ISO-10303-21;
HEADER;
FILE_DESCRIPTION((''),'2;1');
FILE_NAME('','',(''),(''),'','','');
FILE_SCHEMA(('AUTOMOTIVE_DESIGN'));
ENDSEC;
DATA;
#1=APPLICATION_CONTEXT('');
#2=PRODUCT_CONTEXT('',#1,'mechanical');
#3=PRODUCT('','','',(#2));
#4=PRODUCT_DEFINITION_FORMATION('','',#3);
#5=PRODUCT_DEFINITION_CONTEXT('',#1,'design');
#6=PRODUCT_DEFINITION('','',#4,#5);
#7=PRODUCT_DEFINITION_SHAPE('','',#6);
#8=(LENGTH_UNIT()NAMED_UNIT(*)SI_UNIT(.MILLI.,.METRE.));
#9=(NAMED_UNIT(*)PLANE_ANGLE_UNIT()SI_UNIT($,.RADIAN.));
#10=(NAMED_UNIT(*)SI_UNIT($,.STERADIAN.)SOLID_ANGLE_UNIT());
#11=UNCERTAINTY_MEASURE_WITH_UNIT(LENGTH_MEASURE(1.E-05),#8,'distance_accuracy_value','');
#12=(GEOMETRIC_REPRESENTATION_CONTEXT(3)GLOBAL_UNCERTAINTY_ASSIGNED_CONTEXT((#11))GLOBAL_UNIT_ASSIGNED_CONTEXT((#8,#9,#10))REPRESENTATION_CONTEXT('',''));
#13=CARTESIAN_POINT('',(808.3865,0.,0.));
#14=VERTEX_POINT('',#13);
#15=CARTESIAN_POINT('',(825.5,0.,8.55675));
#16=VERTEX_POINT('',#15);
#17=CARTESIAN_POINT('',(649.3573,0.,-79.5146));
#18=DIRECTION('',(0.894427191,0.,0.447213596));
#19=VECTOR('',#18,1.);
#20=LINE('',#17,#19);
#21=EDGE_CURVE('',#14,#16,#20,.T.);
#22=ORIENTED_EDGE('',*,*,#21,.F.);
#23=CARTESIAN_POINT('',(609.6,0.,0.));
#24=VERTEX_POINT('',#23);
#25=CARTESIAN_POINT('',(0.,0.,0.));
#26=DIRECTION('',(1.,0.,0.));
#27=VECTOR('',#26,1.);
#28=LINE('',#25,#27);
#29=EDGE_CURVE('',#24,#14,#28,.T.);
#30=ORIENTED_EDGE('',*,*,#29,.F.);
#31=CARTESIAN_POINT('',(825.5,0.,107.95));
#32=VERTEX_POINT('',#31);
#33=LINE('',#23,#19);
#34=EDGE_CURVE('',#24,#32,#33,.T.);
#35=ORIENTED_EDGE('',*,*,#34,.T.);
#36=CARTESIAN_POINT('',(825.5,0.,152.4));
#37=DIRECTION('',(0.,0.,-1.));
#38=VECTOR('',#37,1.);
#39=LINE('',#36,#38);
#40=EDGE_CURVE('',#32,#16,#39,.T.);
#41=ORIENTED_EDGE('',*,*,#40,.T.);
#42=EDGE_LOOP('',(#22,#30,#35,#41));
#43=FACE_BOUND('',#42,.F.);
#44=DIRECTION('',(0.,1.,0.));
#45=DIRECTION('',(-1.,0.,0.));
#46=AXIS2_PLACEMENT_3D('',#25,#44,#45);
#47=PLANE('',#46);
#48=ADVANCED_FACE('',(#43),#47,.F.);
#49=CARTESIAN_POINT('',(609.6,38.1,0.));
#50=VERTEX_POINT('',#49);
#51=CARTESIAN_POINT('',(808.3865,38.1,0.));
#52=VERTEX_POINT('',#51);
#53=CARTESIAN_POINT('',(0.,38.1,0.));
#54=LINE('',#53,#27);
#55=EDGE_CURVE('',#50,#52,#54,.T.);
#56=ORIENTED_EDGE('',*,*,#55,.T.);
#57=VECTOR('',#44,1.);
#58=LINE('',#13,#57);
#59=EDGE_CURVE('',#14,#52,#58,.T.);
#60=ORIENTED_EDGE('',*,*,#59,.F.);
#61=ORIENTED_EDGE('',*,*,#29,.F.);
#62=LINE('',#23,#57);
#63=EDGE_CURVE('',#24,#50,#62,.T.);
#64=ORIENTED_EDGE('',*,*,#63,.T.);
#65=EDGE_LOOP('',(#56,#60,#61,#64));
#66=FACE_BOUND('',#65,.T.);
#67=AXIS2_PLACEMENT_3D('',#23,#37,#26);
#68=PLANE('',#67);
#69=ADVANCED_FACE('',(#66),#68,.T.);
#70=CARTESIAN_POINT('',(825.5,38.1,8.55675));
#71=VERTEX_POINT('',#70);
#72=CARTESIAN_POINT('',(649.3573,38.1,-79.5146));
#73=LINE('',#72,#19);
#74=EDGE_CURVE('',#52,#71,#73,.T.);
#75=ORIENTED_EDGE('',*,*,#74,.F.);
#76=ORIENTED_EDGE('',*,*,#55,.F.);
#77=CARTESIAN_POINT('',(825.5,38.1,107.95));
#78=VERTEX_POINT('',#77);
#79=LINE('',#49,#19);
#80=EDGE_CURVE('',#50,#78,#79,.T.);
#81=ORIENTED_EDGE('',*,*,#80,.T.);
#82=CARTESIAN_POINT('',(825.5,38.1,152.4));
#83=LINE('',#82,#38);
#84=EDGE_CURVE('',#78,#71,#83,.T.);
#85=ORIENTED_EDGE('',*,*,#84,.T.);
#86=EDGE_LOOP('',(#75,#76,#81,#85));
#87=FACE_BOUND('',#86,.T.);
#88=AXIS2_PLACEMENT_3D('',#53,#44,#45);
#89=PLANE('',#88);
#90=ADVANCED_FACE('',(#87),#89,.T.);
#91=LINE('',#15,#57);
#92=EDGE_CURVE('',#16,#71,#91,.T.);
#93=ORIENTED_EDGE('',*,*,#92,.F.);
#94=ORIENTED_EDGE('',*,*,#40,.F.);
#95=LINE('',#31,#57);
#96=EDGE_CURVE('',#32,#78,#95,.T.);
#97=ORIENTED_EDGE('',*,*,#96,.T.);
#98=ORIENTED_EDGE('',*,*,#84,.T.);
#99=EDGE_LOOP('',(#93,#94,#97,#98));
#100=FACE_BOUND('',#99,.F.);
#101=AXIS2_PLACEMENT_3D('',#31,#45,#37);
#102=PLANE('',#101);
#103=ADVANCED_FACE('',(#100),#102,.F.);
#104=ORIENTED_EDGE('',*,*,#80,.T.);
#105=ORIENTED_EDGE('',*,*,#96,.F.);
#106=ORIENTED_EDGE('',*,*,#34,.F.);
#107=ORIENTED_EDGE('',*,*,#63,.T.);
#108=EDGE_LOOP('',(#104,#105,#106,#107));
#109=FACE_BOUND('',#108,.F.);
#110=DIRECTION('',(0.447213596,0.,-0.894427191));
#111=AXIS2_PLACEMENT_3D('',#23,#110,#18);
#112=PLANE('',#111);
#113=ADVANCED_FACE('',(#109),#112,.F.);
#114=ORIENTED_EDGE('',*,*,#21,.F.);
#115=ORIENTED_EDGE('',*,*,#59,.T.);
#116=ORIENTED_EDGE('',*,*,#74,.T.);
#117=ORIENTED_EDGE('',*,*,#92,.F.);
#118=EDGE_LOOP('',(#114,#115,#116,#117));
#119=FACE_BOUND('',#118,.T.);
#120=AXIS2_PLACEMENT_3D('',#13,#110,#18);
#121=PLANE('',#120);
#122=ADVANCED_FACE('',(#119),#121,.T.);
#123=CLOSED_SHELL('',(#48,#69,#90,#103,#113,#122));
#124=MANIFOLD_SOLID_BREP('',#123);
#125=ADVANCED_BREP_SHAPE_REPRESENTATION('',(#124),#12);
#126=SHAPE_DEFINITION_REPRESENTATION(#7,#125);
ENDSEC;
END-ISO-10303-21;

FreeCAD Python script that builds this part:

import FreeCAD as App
import Part
import Sketcher

V = App.Vector
Q = App.Units.Quantity


def add_polygon(sketch, points):
    """Adds a closed chain of lines whose ends are joined by coincident constraints."""
    first, n = sketch.GeometryCount, len(points)
    for a, b in zip(points, points[1:] + points[:1]):
        sketch.addGeometry(Part.LineSegment(App.Vector(*a, 0), App.Vector(*b, 0)), False)
    for i in range(n):
        sketch.addConstraint(Sketcher.Constraint("Coincident", first + i, 2, first + (i + 1) % n, 1))

doc = App.newDocument("Part")
body = doc.addObject("PartDesign::Body", "Body")

# Sketch on XZ plane
sketch1 = doc.addObject("Sketcher::SketchObject", "Sketch")
body.addObject(sketch1)
sketch1.AttachmentSupport = (doc.XZ_Plane, [""])
sketch1.MapMode = "FlatFace"
add_polygon(sketch1, [(826, 9), (808, 0), (610, 0), (826, 108)])  # lines 0-3
sketch1.addConstraint(Sketcher.Constraint("Horizontal", 1))
sketch1.addConstraint(Sketcher.Constraint("Vertical", 3))
sketch1.addConstraint(Sketcher.Constraint("PointOnObject", 0, 2, -1))
sketch1.addConstraint(Sketcher.Constraint("Parallel", 0, 2))
sketch1.addConstraint(Sketcher.Constraint("DistanceX", -1, 1, 1, 2, Q("24 in")))
sketch1.addConstraint(Sketcher.Constraint("DistanceX", -1, 1, 2, 2, Q("32.5 in")))
sketch1.addConstraint(Sketcher.Constraint("DistanceY", -1, 1, 2, 2, Q("4.25 in")))
sketch1.addConstraint(Sketcher.Constraint("DistanceX", 1, 2, 1, 1, Q("198.7865 mm")))
pad1 = doc.addObject("PartDesign::Pad", "Pad")
body.addObject(pad1)
pad1.Profile = sketch1
pad1.Length = Q("1.5 in")
pad1.Reversed = True

doc.recompute()
